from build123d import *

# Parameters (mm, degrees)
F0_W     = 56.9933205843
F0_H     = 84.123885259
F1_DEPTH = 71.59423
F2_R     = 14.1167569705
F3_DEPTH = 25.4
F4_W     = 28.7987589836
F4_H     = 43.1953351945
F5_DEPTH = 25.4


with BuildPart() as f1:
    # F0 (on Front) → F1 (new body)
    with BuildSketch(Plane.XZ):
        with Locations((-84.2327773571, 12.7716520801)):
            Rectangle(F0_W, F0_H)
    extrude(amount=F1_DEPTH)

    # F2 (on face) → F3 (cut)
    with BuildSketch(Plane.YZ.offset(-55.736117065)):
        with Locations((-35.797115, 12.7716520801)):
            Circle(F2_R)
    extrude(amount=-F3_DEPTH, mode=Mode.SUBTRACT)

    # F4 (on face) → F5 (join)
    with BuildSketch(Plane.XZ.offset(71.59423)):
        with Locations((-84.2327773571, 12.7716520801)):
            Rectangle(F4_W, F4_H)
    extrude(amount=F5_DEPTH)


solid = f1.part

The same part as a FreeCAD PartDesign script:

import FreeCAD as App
import Part
import Sketcher
from FreeCAD import Vector
Q = App.Units.Quantity


def add_polygon(sketch, points):
    """Adds a closed chain of lines whose ends are joined by coincident constraints."""
    first, n = sketch.GeometryCount, len(points)
    for a, b in zip(points, points[1:] + points[:1]):
        sketch.addGeometry(Part.LineSegment(App.Vector(*a, 0), App.Vector(*b, 0)), False)
    for i in range(n):
        sketch.addConstraint(Sketcher.Constraint("Coincident", first + i, 2, first + (i + 1) % n, 1))

doc = App.newDocument("Part")
body = doc.addObject("PartDesign::Body", "Body")

sketch1 = body.newObject("Sketcher::SketchObject", "Sketch")
sketch1.AttachmentSupport = (doc.getObject("XZ_Plane"), [""])
sketch1.MapMode = "FlatFace"
add_polygon(sketch1, [(-112.729438, 54.833595), (-112.729438, -29.290291), (-55.736117, -29.290291), (-55.736117, 54.833595)])
sketch1.addConstraint(Sketcher.Constraint("Vertical", 0))
sketch1.addConstraint(Sketcher.Constraint("Horizontal", 1))
sketch1.addConstraint(Sketcher.Constraint("Vertical", 2))
sketch1.addConstraint(Sketcher.Constraint("Horizontal", 3))
sketch1.addConstraint(Sketcher.Constraint("DistanceX", 1, 1, 1, 2, Q("56.993321 mm")))
sketch1.addConstraint(Sketcher.Constraint("DistanceY", 0, 2, 0, 1, Q("84.123885 mm")))
sketch1.addConstraint(Sketcher.Constraint("DistanceY", 0, 2, -1, 1, Q("29.290291 mm")))
sketch1.addConstraint(Sketcher.Constraint("DistanceX", 0, 2, -1, 1, Q("112.729438 mm")))
pad1 = body.newObject("PartDesign::Pad", "Pad")
pad1.Profile = sketch1
pad1.Length = 71.59423

sketch2 = body.newObject("Sketcher::SketchObject", "Sketch001")
sketch2.AttachmentSupport = (doc.getObject("YZ_Plane"), [""])
sketch2.MapMode = "FlatFace"
sketch2.AttachmentOffset = App.Placement(Vector(0, 0, -55.736117), App.Rotation())
sketch2.addGeometry(Part.Circle(Vector(-35.797115, 12.771652, 0), Vector(0, 0, 1), 14.116757), False)
sketch2.addConstraint(Sketcher.Constraint("Diameter", 0, Q("28.233514 mm")))
sketch2.addConstraint(Sketcher.Constraint("DistanceX", 0, 3, -1, 1, Q("35.797115 mm")))
sketch2.addConstraint(Sketcher.Constraint("DistanceY", -1, 1, 0, 3, Q("12.771652 mm")))
pocket1 = body.newObject("PartDesign::Pocket", "Pocket")
pocket1.Profile = sketch2
pocket1.Length = Q("1 in")

sketch3 = body.newObject("Sketcher::SketchObject", "Sketch002")
sketch3.AttachmentSupport = (doc.getObject("XZ_Plane"), [""])
sketch3.MapMode = "FlatFace"
sketch3.AttachmentOffset = App.Placement(Vector(0, 0, 71.59423), App.Rotation())
add_polygon(sketch3, [(-98.632157, 34.36932), (-98.632157, -8.826016), (-69.833398, -8.826016), (-69.833398, 34.36932)])
sketch3.addConstraint(Sketcher.Constraint("Vertical", 0))
sketch3.addConstraint(Sketcher.Constraint("Horizontal", 1))
sketch3.addConstraint(Sketcher.Constraint("Vertical", 2))
sketch3.addConstraint(Sketcher.Constraint("Horizontal", 3))
sketch3.addConstraint(Sketcher.Constraint("DistanceX", 1, 1, 1, 2, Q("28.798759 mm")))
sketch3.addConstraint(Sketcher.Constraint("DistanceY", 0, 2, 0, 1, Q("43.195335 mm")))
sketch3.addConstraint(Sketcher.Constraint("DistanceY", -1, 1, 2, 2, Q("34.36932 mm")))
sketch3.addConstraint(Sketcher.Constraint("DistanceX", 0, 2, -1, 1, Q("98.632157 mm")))
pad2 = body.newObject("PartDesign::Pad", "Pad001")
pad2.Profile = sketch3
pad2.Length = Q("1 in")

doc.recompute()
